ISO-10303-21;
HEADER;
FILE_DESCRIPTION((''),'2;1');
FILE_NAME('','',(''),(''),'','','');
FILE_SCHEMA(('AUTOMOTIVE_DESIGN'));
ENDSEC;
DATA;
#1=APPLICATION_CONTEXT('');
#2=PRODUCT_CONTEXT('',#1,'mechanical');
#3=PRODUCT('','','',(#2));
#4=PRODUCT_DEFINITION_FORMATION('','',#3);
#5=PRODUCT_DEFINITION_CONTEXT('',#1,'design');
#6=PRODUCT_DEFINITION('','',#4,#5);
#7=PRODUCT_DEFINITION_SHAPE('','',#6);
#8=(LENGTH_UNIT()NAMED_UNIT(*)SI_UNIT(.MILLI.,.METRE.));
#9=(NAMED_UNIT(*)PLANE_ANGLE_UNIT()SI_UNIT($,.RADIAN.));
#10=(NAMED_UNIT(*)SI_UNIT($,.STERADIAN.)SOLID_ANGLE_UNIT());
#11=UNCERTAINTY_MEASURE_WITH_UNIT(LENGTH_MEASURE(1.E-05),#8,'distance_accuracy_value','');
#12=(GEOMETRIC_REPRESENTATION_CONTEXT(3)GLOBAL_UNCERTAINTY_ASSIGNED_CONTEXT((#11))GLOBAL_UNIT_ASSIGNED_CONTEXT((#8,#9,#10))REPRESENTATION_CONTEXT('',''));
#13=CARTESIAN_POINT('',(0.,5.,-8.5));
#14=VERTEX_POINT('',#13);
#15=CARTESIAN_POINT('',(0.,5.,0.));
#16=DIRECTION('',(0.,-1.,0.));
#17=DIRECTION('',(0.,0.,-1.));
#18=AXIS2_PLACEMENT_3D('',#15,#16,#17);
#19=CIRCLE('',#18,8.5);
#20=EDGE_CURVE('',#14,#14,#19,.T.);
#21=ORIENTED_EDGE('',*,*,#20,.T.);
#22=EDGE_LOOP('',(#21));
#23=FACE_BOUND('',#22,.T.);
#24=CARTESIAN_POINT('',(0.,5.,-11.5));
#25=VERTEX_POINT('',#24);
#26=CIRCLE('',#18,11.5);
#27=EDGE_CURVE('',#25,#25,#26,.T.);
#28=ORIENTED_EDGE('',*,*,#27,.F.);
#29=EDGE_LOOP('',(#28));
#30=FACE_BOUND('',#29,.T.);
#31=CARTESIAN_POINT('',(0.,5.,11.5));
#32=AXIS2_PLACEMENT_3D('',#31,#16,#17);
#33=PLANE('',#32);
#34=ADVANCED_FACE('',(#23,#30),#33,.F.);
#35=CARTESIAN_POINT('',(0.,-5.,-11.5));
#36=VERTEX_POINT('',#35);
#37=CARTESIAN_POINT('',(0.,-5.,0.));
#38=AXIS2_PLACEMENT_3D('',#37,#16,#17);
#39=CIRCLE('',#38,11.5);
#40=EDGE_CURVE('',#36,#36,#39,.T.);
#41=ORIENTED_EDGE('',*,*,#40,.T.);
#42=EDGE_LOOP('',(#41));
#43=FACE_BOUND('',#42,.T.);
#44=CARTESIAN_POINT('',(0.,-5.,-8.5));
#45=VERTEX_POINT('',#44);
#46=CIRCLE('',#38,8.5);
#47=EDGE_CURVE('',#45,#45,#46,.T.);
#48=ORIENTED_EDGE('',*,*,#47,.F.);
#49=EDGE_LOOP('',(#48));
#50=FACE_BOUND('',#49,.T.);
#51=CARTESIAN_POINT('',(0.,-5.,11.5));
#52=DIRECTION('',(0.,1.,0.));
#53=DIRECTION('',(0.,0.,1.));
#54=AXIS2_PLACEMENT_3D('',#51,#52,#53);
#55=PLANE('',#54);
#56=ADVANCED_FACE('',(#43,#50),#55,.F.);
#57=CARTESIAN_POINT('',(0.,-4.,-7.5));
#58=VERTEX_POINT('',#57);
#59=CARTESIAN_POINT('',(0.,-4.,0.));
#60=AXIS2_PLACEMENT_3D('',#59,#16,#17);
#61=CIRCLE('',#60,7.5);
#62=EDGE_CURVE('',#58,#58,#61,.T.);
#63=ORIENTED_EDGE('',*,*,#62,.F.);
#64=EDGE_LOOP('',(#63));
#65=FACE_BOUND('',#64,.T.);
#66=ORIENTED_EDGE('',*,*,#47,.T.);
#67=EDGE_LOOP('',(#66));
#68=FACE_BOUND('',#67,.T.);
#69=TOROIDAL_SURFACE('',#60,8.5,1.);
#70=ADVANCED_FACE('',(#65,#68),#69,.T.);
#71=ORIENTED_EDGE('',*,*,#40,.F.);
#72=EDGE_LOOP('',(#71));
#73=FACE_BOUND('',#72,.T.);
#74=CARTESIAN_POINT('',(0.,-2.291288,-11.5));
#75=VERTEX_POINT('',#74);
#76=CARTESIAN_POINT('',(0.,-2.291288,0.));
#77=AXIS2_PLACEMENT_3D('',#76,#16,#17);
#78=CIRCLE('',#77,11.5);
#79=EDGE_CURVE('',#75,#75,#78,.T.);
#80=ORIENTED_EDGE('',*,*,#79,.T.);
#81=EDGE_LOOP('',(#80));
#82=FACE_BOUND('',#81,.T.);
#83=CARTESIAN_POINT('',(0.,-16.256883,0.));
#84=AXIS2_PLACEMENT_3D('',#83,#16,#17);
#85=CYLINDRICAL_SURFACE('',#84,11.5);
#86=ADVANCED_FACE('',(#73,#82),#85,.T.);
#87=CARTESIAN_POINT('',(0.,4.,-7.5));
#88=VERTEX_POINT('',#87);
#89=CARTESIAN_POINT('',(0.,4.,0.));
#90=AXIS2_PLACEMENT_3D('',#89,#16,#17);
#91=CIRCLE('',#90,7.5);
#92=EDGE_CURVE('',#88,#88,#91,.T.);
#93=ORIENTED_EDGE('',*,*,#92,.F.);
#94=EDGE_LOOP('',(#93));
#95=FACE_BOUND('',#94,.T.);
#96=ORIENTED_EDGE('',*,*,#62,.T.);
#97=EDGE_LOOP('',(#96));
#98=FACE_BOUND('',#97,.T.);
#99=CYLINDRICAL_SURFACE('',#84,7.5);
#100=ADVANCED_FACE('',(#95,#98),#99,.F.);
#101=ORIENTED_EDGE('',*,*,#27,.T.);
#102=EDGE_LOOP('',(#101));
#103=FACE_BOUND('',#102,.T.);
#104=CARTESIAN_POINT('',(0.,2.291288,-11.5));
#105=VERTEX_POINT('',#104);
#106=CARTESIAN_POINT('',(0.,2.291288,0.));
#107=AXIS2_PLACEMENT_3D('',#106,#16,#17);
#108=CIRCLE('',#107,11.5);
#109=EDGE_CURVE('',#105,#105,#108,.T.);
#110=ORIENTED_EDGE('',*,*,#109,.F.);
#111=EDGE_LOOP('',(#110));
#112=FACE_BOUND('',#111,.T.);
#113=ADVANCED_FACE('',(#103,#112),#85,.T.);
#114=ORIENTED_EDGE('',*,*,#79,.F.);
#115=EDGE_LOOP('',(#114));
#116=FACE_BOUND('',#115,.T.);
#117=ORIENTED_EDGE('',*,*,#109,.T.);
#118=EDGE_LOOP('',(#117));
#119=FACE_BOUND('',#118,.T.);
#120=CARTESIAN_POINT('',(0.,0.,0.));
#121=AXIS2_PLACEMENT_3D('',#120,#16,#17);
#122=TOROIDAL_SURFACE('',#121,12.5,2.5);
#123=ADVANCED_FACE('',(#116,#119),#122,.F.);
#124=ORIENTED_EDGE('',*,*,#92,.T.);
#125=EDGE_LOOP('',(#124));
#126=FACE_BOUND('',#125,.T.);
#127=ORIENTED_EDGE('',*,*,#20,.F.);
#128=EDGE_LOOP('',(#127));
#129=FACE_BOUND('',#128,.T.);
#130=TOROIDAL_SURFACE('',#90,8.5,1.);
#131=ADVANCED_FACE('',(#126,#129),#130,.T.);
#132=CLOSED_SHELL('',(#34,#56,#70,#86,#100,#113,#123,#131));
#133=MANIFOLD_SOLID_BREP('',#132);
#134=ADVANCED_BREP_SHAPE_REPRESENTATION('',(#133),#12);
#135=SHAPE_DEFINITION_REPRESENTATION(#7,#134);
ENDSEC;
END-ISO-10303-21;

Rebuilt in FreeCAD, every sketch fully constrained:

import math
import FreeCAD as App
import Part
import Sketcher
from FreeCAD import Vector

doc = App.newDocument("Part")
body = doc.addObject("PartDesign::Body", "Body")

sketch1 = body.newObject("Sketcher::SketchObject", "Sketch")
sketch1.AttachmentSupport = (doc.getObject("YZ_Plane"), [""])
sketch1.MapMode = "FlatFace"
sketch1.addGeometry(Part.LineSegment(Vector(-4, 7.5, 0), Vector(4, 7.5, 0)), False)
sketch1.addGeometry(Part.ArcOfCircle(Part.Circle(Vector(4, 8.5, 0), Vector(0, 0, 1), 1), math.radians(-90), math.radians(0)), False)
sketch1.addGeometry(Part.LineSegment(Vector(5, 8.5, 0), Vector(5, 11.5, 0)), False)
sketch1.addGeometry(Part.LineSegment(Vector(5, 11.5, 0), Vector(2.3, 11.5, 0)), False)
sketch1.addGeometry(Part.ArcOfCircle(Part.Circle(Vector(0, 12.5, 0), Vector(0, 0, 1), 2.5), math.radians(-156), math.radians(-24)), False)
sketch1.addGeometry(Part.LineSegment(Vector(-2.3, 11.5, 0), Vector(-5, 11.5, 0)), False)
sketch1.addGeometry(Part.LineSegment(Vector(-5, 11.5, 0), Vector(-5, 8.5, 0)), False)
sketch1.addGeometry(Part.ArcOfCircle(Part.Circle(Vector(-4, 8.5, 0), Vector(0, 0, 1), 1), math.radians(-180), math.radians(-90)), False)
sketch1.addConstraint(Sketcher.Constraint("Tangent", 0, 2, 1, 1))
sketch1.addConstraint(Sketcher.Constraint("Tangent", 1, 2, 2, 1))
sketch1.addConstraint(Sketcher.Constraint("Coincident", 2, 2, 3, 1))
sketch1.addConstraint(Sketcher.Constraint("Coincident", 3, 2, 4, 2))
sketch1.addConstraint(Sketcher.Constraint("Coincident", 4, 1, 5, 1))
sketch1.addConstraint(Sketcher.Constraint("Coincident", 5, 2, 6, 1))
sketch1.addConstraint(Sketcher.Constraint("Tangent", 6, 2, 7, 1))
sketch1.addConstraint(Sketcher.Constraint("Tangent", 7, 2, 0, 1))
sketch1.addConstraint(Sketcher.Constraint("Horizontal", 0))
sketch1.addConstraint(Sketcher.Constraint("Vertical", 2))
sketch1.addConstraint(Sketcher.Constraint("Horizontal", 3))
sketch1.addConstraint(Sketcher.Constraint("Horizontal", 5))
sketch1.addConstraint(Sketcher.Constraint("Vertical", 6))
sketch1.addConstraint(Sketcher.Constraint("Equal", 1, 7))
sketch1.addConstraint(Sketcher.Constraint("Symmetric", 3, 2, 4, 1, -2))
sketch1.addConstraint(Sketcher.Constraint("Equal", 3, 5))
sketch1.addConstraint(Sketcher.Constraint("Radius", 1, 1.0))
sketch1.addConstraint(Sketcher.Constraint("Radius", 4, 2.5))
sketch1.addConstraint(Sketcher.Constraint("DistanceX", 0, 1, 0, 2, 8.0))
sketch1.addConstraint(Sketcher.Constraint("DistanceY", 2, 1, 2, 2, 3.0))
sketch1.addConstraint(Sketcher.Constraint("DistanceY", 1, 3, 4, 3, 4.0))
sketch1.addConstraint(Sketcher.Constraint("DistanceY", -1, 1, 1, 3, 8.5))
revolution = body.newObject("PartDesign::Revolution", "Revolution")
revolution.Profile = sketch1
revolution.ReferenceAxis = (sketch1, ["H_Axis"])
revolution.Angle = 360

doc.recompute()
